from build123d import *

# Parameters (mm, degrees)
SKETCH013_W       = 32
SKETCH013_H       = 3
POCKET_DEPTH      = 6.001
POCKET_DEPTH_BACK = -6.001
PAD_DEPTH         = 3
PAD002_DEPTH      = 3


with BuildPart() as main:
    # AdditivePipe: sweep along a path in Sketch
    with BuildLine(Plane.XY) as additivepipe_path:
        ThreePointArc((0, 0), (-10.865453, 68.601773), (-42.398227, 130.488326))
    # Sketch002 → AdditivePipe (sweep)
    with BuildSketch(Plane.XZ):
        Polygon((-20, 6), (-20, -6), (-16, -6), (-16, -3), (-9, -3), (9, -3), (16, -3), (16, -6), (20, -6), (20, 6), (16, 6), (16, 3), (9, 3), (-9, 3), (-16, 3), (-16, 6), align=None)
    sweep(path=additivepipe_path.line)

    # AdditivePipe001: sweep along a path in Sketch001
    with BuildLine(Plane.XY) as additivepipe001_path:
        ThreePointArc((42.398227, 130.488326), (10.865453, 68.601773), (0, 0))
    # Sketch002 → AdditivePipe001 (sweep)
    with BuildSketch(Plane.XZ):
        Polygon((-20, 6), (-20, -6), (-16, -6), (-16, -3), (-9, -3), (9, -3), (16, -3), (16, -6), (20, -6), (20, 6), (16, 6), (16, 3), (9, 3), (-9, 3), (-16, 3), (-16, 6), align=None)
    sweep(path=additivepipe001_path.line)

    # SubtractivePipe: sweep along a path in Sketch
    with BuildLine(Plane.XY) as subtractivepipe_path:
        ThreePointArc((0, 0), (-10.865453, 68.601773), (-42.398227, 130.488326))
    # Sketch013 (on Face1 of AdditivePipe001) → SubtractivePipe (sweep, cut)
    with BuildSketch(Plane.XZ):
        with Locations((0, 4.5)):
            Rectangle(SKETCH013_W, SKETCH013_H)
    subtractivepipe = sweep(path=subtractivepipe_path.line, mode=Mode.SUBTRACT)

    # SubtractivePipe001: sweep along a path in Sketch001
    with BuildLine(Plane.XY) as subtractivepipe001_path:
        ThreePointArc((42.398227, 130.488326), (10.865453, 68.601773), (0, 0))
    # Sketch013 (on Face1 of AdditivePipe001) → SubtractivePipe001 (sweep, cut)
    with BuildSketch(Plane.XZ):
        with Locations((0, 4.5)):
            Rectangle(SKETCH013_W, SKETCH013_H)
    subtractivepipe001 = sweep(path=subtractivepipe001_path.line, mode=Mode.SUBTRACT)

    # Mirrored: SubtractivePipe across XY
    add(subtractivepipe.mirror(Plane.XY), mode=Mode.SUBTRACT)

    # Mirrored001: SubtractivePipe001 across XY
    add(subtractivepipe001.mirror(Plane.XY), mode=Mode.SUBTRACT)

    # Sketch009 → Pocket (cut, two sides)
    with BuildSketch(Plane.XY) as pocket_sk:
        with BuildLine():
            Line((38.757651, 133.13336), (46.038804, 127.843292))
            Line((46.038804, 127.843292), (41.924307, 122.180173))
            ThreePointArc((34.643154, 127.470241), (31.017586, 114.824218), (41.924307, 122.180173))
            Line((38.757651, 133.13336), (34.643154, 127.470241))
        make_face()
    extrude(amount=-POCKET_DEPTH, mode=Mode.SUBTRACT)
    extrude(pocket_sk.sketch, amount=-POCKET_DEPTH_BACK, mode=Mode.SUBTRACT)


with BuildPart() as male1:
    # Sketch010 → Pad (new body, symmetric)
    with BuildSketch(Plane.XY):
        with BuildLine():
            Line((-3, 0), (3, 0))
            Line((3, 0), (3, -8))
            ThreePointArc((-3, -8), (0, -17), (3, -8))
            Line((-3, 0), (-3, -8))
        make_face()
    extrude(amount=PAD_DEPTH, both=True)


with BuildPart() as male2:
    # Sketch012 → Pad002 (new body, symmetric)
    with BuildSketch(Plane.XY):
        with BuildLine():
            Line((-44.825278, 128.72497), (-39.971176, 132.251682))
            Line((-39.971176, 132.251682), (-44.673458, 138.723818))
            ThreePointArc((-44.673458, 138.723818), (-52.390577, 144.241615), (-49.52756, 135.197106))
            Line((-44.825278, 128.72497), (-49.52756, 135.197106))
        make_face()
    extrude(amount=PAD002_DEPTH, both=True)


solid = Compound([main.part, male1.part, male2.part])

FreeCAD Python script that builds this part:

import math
import FreeCAD as App
import Part
import Sketcher

V = App.Vector
Q = App.Units.Quantity

doc = App.newDocument("Part")
body = doc.addObject("PartDesign::Body", "Body")

# Sketch on XZ plane
sketch1 = body.newObject("Sketcher::SketchObject", "Sketch")
sketch1.AttachmentSupport = (doc.getObject("XZ_Plane"), [""])
sketch1.MapMode = "FlatFace"
sketch1.addGeometry(Part.LineSegment(V(-20, 6, 0), V(-20, -6, 0)), False)
sketch1.addGeometry(Part.LineSegment(V(-20, -6, 0), V(-16, -6, 0)), False)
sketch1.addGeometry(Part.LineSegment(V(-16, -6, 0), V(-16, -3, 0)), False)
sketch1.addGeometry(Part.LineSegment(V(-16, -3, 0), V(16, -3, 0)), False)
sketch1.addGeometry(Part.LineSegment(V(16, -3, 0), V(16, -6, 0)), False)
sketch1.addGeometry(Part.LineSegment(V(16, -6, 0), V(20, -6, 0)), False)
sketch1.addGeometry(Part.LineSegment(V(20, -6, 0), V(20, 6, 0)), False)
sketch1.addGeometry(Part.LineSegment(V(20, 6, 0), V(16, 6, 0)), False)
sketch1.addGeometry(Part.LineSegment(V(16, 6, 0), V(16, 3, 0)), False)
sketch1.addGeometry(Part.LineSegment(V(16, 3, 0), V(-16, 3, 0)), False)
sketch1.addGeometry(Part.LineSegment(V(-16, 3, 0), V(-16, 6, 0)), False)
sketch1.addGeometry(Part.LineSegment(V(-16, 6, 0), V(-20, 6, 0)), False)
sketch1.addConstraint(Sketcher.Constraint("Coincident", 0, 2, 1, 1))
sketch1.addConstraint(Sketcher.Constraint("Coincident", 1, 2, 2, 1))
sketch1.addConstraint(Sketcher.Constraint("Coincident", 2, 2, 3, 1))
sketch1.addConstraint(Sketcher.Constraint("Coincident", 3, 2, 4, 1))
sketch1.addConstraint(Sketcher.Constraint("Coincident", 4, 2, 5, 1))
sketch1.addConstraint(Sketcher.Constraint("Coincident", 5, 2, 6, 1))
sketch1.addConstraint(Sketcher.Constraint("Coincident", 6, 2, 7, 1))
sketch1.addConstraint(Sketcher.Constraint("Coincident", 7, 2, 8, 1))
sketch1.addConstraint(Sketcher.Constraint("Coincident", 8, 2, 9, 1))
sketch1.addConstraint(Sketcher.Constraint("Coincident", 9, 2, 10, 1))
sketch1.addConstraint(Sketcher.Constraint("Coincident", 10, 2, 11, 1))
sketch1.addConstraint(Sketcher.Constraint("Coincident", 11, 2, 0, 1))
sketch1.addConstraint(Sketcher.Constraint("Vertical", 0))
sketch1.addConstraint(Sketcher.Constraint("Horizontal", 1))
sketch1.addConstraint(Sketcher.Constraint("Vertical", 2))
sketch1.addConstraint(Sketcher.Constraint("Horizontal", 3))
sketch1.addConstraint(Sketcher.Constraint("Vertical", 4))
sketch1.addConstraint(Sketcher.Constraint("Horizontal", 5))
sketch1.addConstraint(Sketcher.Constraint("Vertical", 6))
sketch1.addConstraint(Sketcher.Constraint("Horizontal", 7))
sketch1.addConstraint(Sketcher.Constraint("Vertical", 8))
sketch1.addConstraint(Sketcher.Constraint("Horizontal", 9))
sketch1.addConstraint(Sketcher.Constraint("Vertical", 10))
sketch1.addConstraint(Sketcher.Constraint("Horizontal", 11))
sketch1.addConstraint(Sketcher.Constraint("Symmetric", 0, 2, 6, 2, -1, 1))
sketch1.addConstraint(Sketcher.Constraint("Symmetric", 2, 2, 8, 2, -1, 1))
sketch1.addConstraint(Sketcher.Constraint("Symmetric", 4, 2, 10, 2, -1, 1))
sketch1.addConstraint(Sketcher.Constraint("Symmetric", 1, 2, 4, 2, -2))
sketch1.addConstraint(Sketcher.Constraint("DistanceX", 1, 1, 1, 2, 4.0))
sketch1.addConstraint(Sketcher.Constraint("DistanceX", 3, 1, 3, 2, 32.0))
sketch1.addConstraint(Sketcher.Constraint("DistanceY", 0, 2, 0, 1, 12.0))
sketch1.addConstraint(Sketcher.Constraint("DistanceY", 2, 1, 2, 2, 3.0))

# Sketch on XY plane
sketch2 = body.newObject("Sketcher::SketchObject", "Sketch001")
sketch2.AttachmentSupport = (doc.getObject("XY_Plane"), [""])
sketch2.MapMode = "FlatFace"
sketch2.addGeometry(Part.ArcOfCircle(Part.Circle(V(-222, 0, 0), V(0, 0, 1), 222), math.radians(0), math.radians(36)), False)
sketch2.addConstraint(Sketcher.Constraint("Coincident", 0, 1, -1, 1))
sketch2.addConstraint(Sketcher.Constraint("Radius", 0, 221.999993))
sketch2.addConstraint(Sketcher.Constraint("DistanceX", 0, 2, -1, 1, 42.398227))
sketch2.addConstraint(Sketcher.Constraint("DistanceY", -1, 1, 0, 2, 130.488326))
doc.recompute()

additivepipe = body.newObject("PartDesign::AdditivePipe", "AdditivePipe")
additivepipe.Profile = sketch1
additivepipe.Spine = (sketch2, ["Edge1"])

# Sketch on XZ plane
sketch3 = body.newObject("Sketcher::SketchObject", "Sketch002")
sketch3.AttachmentSupport = (doc.getObject("XZ_Plane"), [""])
sketch3.MapMode = "FlatFace"
sketch3.addGeometry(Part.LineSegment(V(-20, 6, 0), V(-20, -6, 0)), False)
sketch3.addGeometry(Part.LineSegment(V(-20, -6, 0), V(-16, -6, 0)), False)
sketch3.addGeometry(Part.LineSegment(V(-16, -6, 0), V(-16, -3, 0)), False)
sketch3.addGeometry(Part.LineSegment(V(-16, -3, 0), V(16, -3, 0)), False)
sketch3.addGeometry(Part.LineSegment(V(16, -3, 0), V(16, -6, 0)), False)
sketch3.addGeometry(Part.LineSegment(V(16, -6, 0), V(20, -6, 0)), False)
sketch3.addGeometry(Part.LineSegment(V(20, -6, 0), V(20, 6, 0)), False)
sketch3.addGeometry(Part.LineSegment(V(20, 6, 0), V(16, 6, 0)), False)
sketch3.addGeometry(Part.LineSegment(V(16, 6, 0), V(16, 3, 0)), False)
sketch3.addGeometry(Part.LineSegment(V(16, 3, 0), V(-16, 3, 0)), False)
sketch3.addGeometry(Part.LineSegment(V(-16, 3, 0), V(-16, 6, 0)), False)
sketch3.addGeometry(Part.LineSegment(V(-16, 6, 0), V(-20, 6, 0)), False)
sketch3.addConstraint(Sketcher.Constraint("Coincident", 0, 2, 1, 1))
sketch3.addConstraint(Sketcher.Constraint("Coincident", 1, 2, 2, 1))
sketch3.addConstraint(Sketcher.Constraint("Coincident", 2, 2, 3, 1))
sketch3.addConstraint(Sketcher.Constraint("Coincident", 3, 2, 4, 1))
sketch3.addConstraint(Sketcher.Constraint("Coincident", 4, 2, 5, 1))
sketch3.addConstraint(Sketcher.Constraint("Coincident", 5, 2, 6, 1))
sketch3.addConstraint(Sketcher.Constraint("Coincident", 6, 2, 7, 1))
sketch3.addConstraint(Sketcher.Constraint("Coincident", 7, 2, 8, 1))
sketch3.addConstraint(Sketcher.Constraint("Coincident", 8, 2, 9, 1))
sketch3.addConstraint(Sketcher.Constraint("Coincident", 9, 2, 10, 1))
sketch3.addConstraint(Sketcher.Constraint("Coincident", 10, 2, 11, 1))
sketch3.addConstraint(Sketcher.Constraint("Coincident", 11, 2, 0, 1))
sketch3.addConstraint(Sketcher.Constraint("Vertical", 0))
sketch3.addConstraint(Sketcher.Constraint("Horizontal", 1))
sketch3.addConstraint(Sketcher.Constraint("Vertical", 2))
sketch3.addConstraint(Sketcher.Constraint("Horizontal", 3))
sketch3.addConstraint(Sketcher.Constraint("Vertical", 4))
sketch3.addConstraint(Sketcher.Constraint("Horizontal", 5))
sketch3.addConstraint(Sketcher.Constraint("Vertical", 6))
sketch3.addConstraint(Sketcher.Constraint("Horizontal", 7))
sketch3.addConstraint(Sketcher.Constraint("Vertical", 8))
sketch3.addConstraint(Sketcher.Constraint("Horizontal", 9))
sketch3.addConstraint(Sketcher.Constraint("Vertical", 10))
sketch3.addConstraint(Sketcher.Constraint("Horizontal", 11))
sketch3.addConstraint(Sketcher.Constraint("Symmetric", 0, 2, 6, 2, -1, 1))
sketch3.addConstraint(Sketcher.Constraint("Symmetric", 2, 2, 8, 2, -1, 1))
sketch3.addConstraint(Sketcher.Constraint("Symmetric", 4, 2, 10, 2, -1, 1))
sketch3.addConstraint(Sketcher.Constraint("Symmetric", 1, 2, 4, 2, -2))
sketch3.addConstraint(Sketcher.Constraint("DistanceX", 1, 1, 1, 2, 4.0))
sketch3.addConstraint(Sketcher.Constraint("DistanceX", 3, 1, 3, 2, 32.0))
sketch3.addConstraint(Sketcher.Constraint("DistanceY", 0, 2, 0, 1, 12.0))
sketch3.addConstraint(Sketcher.Constraint("DistanceY", 2, 1, 2, 2, 3.0))

# Sketch on XY plane
sketch4 = body.newObject("Sketcher::SketchObject", "Sketch003")
sketch4.AttachmentSupport = (doc.getObject("XY_Plane"), [""])
sketch4.MapMode = "FlatFace"
sketch4.addGeometry(Part.ArcOfCircle(Part.Circle(V(222, 0, 0), V(0, 0, 1), 222), math.radians(144), math.radians(180)), False)
sketch4.addConstraint(Sketcher.Constraint("Coincident", 0, 2, -1, 1))
sketch4.addConstraint(Sketcher.Constraint("Radius", 0, 221.999993))
sketch4.addConstraint(Sketcher.Constraint("DistanceX", -1, 1, 0, 1, 42.398227))
sketch4.addConstraint(Sketcher.Constraint("DistanceY", -1, 1, 0, 1, 130.488326))
doc.recompute()

additivepipe2 = body.newObject("PartDesign::AdditivePipe", "AdditivePipe001")
additivepipe2.Profile = sketch3
additivepipe2.Spine = (sketch4, ["Edge1"])

# Sketch on XZ plane
sketch5 = body.newObject("Sketcher::SketchObject", "Sketch004")
sketch5.AttachmentSupport = (doc.getObject("XZ_Plane"), [""])
sketch5.MapMode = "FlatFace"
sketch5.addGeometry(Part.LineSegment(V(-16, 6, 0), V(-16, 3, 0)), False)
sketch5.addGeometry(Part.LineSegment(V(-16, 3, 0), V(16, 3, 0)), False)
sketch5.addGeometry(Part.LineSegment(V(16, 3, 0), V(16, 6, 0)), False)
sketch5.addGeometry(Part.LineSegment(V(16, 6, 0), V(-16, 6, 0)), False)
sketch5.addConstraint(Sketcher.Constraint("Coincident", 0, 2, 1, 1))
sketch5.addConstraint(Sketcher.Constraint("Coincident", 1, 2, 2, 1))
sketch5.addConstraint(Sketcher.Constraint("Coincident", 2, 2, 3, 1))
sketch5.addConstraint(Sketcher.Constraint("Coincident", 3, 2, 0, 1))
sketch5.addConstraint(Sketcher.Constraint("Vertical", 0))
sketch5.addConstraint(Sketcher.Constraint("Horizontal", 1))
sketch5.addConstraint(Sketcher.Constraint("Vertical", 2))
sketch5.addConstraint(Sketcher.Constraint("Horizontal", 3))
sketch5.addConstraint(Sketcher.Constraint("DistanceX", 1, 1, 1, 2, 32.0))
sketch5.addConstraint(Sketcher.Constraint("DistanceY", 0, 2, 0, 1, 3.0))
sketch5.addConstraint(Sketcher.Constraint("DistanceX", 0, 2, -1, 1, 16.0))
sketch5.addConstraint(Sketcher.Constraint("DistanceY", -1, 1, 0, 2, 3.0))

# Sketch on XY plane
sketch6 = body.newObject("Sketcher::SketchObject", "Sketch005")
sketch6.AttachmentSupport = (doc.getObject("XY_Plane"), [""])
sketch6.MapMode = "FlatFace"
sketch6.addGeometry(Part.ArcOfCircle(Part.Circle(V(-222, 0, 0), V(0, 0, 1), 222), math.radians(0), math.radians(36)), False)
sketch6.addConstraint(Sketcher.Constraint("Coincident", 0, 1, -1, 1))
sketch6.addConstraint(Sketcher.Constraint("Radius", 0, 221.999993))
sketch6.addConstraint(Sketcher.Constraint("DistanceX", 0, 2, -1, 1, 42.398227))
sketch6.addConstraint(Sketcher.Constraint("DistanceY", -1, 1, 0, 2, 130.488326))
doc.recompute()

subtractivepipe = body.newObject("PartDesign::SubtractivePipe", "SubtractivePipe")
subtractivepipe.Profile = sketch5
subtractivepipe.Spine = (sketch6, ["Edge1"])

# Sketch on XZ plane
sketch7 = body.newObject("Sketcher::SketchObject", "Sketch006")
sketch7.AttachmentSupport = (doc.getObject("XZ_Plane"), [""])
sketch7.MapMode = "FlatFace"
sketch7.addGeometry(Part.LineSegment(V(-16, 6, 0), V(-16, 3, 0)), False)
sketch7.addGeometry(Part.LineSegment(V(-16, 3, 0), V(16, 3, 0)), False)
sketch7.addGeometry(Part.LineSegment(V(16, 3, 0), V(16, 6, 0)), False)
sketch7.addGeometry(Part.LineSegment(V(16, 6, 0), V(-16, 6, 0)), False)
sketch7.addConstraint(Sketcher.Constraint("Coincident", 0, 2, 1, 1))
sketch7.addConstraint(Sketcher.Constraint("Coincident", 1, 2, 2, 1))
sketch7.addConstraint(Sketcher.Constraint("Coincident", 2, 2, 3, 1))
sketch7.addConstraint(Sketcher.Constraint("Coincident", 3, 2, 0, 1))
sketch7.addConstraint(Sketcher.Constraint("Vertical", 0))
sketch7.addConstraint(Sketcher.Constraint("Horizontal", 1))
sketch7.addConstraint(Sketcher.Constraint("Vertical", 2))
sketch7.addConstraint(Sketcher.Constraint("Horizontal", 3))
sketch7.addConstraint(Sketcher.Constraint("DistanceX", 1, 1, 1, 2, 32.0))
sketch7.addConstraint(Sketcher.Constraint("DistanceY", 0, 2, 0, 1, 3.0))
sketch7.addConstraint(Sketcher.Constraint("DistanceX", 0, 2, -1, 1, 16.0))
sketch7.addConstraint(Sketcher.Constraint("DistanceY", -1, 1, 0, 2, 3.0))

# Sketch on XY plane
sketch8 = body.newObject("Sketcher::SketchObject", "Sketch007")
sketch8.AttachmentSupport = (doc.getObject("XY_Plane"), [""])
sketch8.MapMode = "FlatFace"
sketch8.addGeometry(Part.ArcOfCircle(Part.Circle(V(222, 0, 0), V(0, 0, 1), 222), math.radians(144), math.radians(180)), False)
sketch8.addConstraint(Sketcher.Constraint("Coincident", 0, 2, -1, 1))
sketch8.addConstraint(Sketcher.Constraint("Radius", 0, 221.999993))
sketch8.addConstraint(Sketcher.Constraint("DistanceX", -1, 1, 0, 1, 42.398227))
sketch8.addConstraint(Sketcher.Constraint("DistanceY", -1, 1, 0, 1, 130.488326))
doc.recompute()

subtractivepipe2 = body.newObject("PartDesign::SubtractivePipe", "SubtractivePipe001")
subtractivepipe2.Profile = sketch7
subtractivepipe2.Spine = (sketch8, ["Edge1"])
doc.recompute()

mirrored = body.newObject("PartDesign::Mirrored", "Mirrored")
mirrored.Originals = [subtractivepipe]
mirrored.MirrorPlane = (doc.getObject("XY_Plane"), [""])
body.Tip = mirrored
doc.recompute()

mirrored2 = body.newObject("PartDesign::Mirrored", "Mirrored001")
mirrored2.Originals = [subtractivepipe2]
mirrored2.MirrorPlane = (doc.getObject("XY_Plane"), [""])
body.Tip = mirrored2

# Sketch on XY plane
sketch9 = body.newObject("Sketcher::SketchObject", "Sketch008")
sketch9.AttachmentSupport = (doc.getObject("XY_Plane"), [""])
sketch9.MapMode = "FlatFace"
sketch9.addGeometry(Part.LineSegment(V(46, 128, 0), V(39, 133, 0)), False)
sketch9.addGeometry(Part.LineSegment(V(39, 133, 0), V(35, 127, 0)), False)
sketch9.addGeometry(Part.ArcOfCircle(Part.Circle(V(35, 120, 0), V(0, 0, 1), 7), math.radians(94), math.radians(374)), False)
sketch9.addGeometry(Part.LineSegment(V(42, 122, 0), V(46, 128, 0)), False)
sketch9.addConstraint(Sketcher.Constraint("Coincident", 0, 2, 1, 1))
sketch9.addConstraint(Sketcher.Constraint("Coincident", 1, 2, 2, 1))
sketch9.addConstraint(Sketcher.Constraint("Coincident", 2, 2, 3, 1))
sketch9.addConstraint(Sketcher.Constraint("Coincident", 3, 2, 0, 1))
sketch9.addConstraint(Sketcher.Constraint("Perpendicular", 0, 1))
sketch9.addConstraint(Sketcher.Constraint("Parallel", 1, 3))
sketch9.addConstraint(Sketcher.Constraint("Equal", 1, 3))
sketch9.addConstraint(Sketcher.Constraint("Radius", 2, 7.0))
sketch9.addConstraint(Sketcher.Constraint("Angle", 0, Q("143.999996 deg")))
sketch9.addConstraint(Sketcher.Constraint("Distance", 0, 9.0))
sketch9.addConstraint(Sketcher.Constraint("Distance", 1, 7.0))
sketch9.addConstraint(Sketcher.Constraint("DistanceX", -1, 1, 0, 2, 38.757651))
sketch9.addConstraint(Sketcher.Constraint("DistanceY", -1, 1, 0, 2, 133.13336))
pocket1 = body.newObject("PartDesign::Pocket", "Pocket")
pocket1.Profile = sketch9
pocket1.Type = "ThroughAll"
pocket1.Midplane = True
body2 = doc.addObject("PartDesign::Body", "Body001")

# Sketch on XY plane
sketch10 = body2.newObject("Sketcher::SketchObject", "Sketch009")
sketch10.AttachmentSupport = (doc.getObject("XY_Plane001"), [""])
sketch10.MapMode = "FlatFace"
sketch10.addGeometry(Part.LineSegment(V(3, 0, 0), V(-3, 0, 0)), False)
sketch10.addGeometry(Part.LineSegment(V(-3, 0, 0), V(-3, -8, 0)), False)
sketch10.addGeometry(Part.ArcOfCircle(Part.Circle(V(0, -12, 0), V(0, 0, 1), 5), math.radians(127), math.radians(413)), False)
sketch10.addGeometry(Part.LineSegment(V(3, -8, 0), V(3, 0, 0)), False)
sketch10.addConstraint(Sketcher.Constraint("Coincident", 0, 2, 1, 1))
sketch10.addConstraint(Sketcher.Constraint("Coincident", 1, 2, 2, 1))
sketch10.addConstraint(Sketcher.Constraint("Coincident", 2, 2, 3, 1))
sketch10.addConstraint(Sketcher.Constraint("Coincident", 3, 2, 0, 1))
sketch10.addConstraint(Sketcher.Constraint("Horizontal", 0))
sketch10.addConstraint(Sketcher.Constraint("Vertical", 1))
sketch10.addConstraint(Sketcher.Constraint("Vertical", 3))
sketch10.addConstraint(Sketcher.Constraint("Symmetric", 0, 2, 3, 2, -1, 1))
sketch10.addConstraint(Sketcher.Constraint("PointOnObject", 2, 3, -2))
sketch10.addConstraint(Sketcher.Constraint("Radius", 2, 5.0))
sketch10.addConstraint(Sketcher.Constraint("DistanceX", 0, 2, 0, 1, 6.0))
sketch10.addConstraint(Sketcher.Constraint("DistanceY", 1, 2, 1, 1, 8.0))
pad1 = body2.newObject("PartDesign::Pad", "Pad")
pad1.Profile = sketch10
pad1.Length = 6
pad1.Midplane = True
body3 = doc.addObject("PartDesign::Body", "Body002")

# Sketch on XY plane
sketch11 = body3.newObject("Sketcher::SketchObject", "Sketch010")
sketch11.AttachmentSupport = (doc.getObject("XY_Plane002"), [""])
sketch11.MapMode = "FlatFace"
sketch11.addGeometry(Part.LineSegment(V(-45, 129, 0), V(-40, 132, 0)), False)
sketch11.addGeometry(Part.LineSegment(V(-40, 132, 0), V(-45, 139, 0)), False)
sketch11.addGeometry(Part.ArcOfCircle(Part.Circle(V(-49, 140, 0), V(0, 0, 1), 5), math.radians(-17), math.radians(269)), False)
sketch11.addGeometry(Part.LineSegment(V(-50, 135, 0), V(-45, 129, 0)), False)
sketch11.addConstraint(Sketcher.Constraint("Coincident", 0, 2, 1, 1))
sketch11.addConstraint(Sketcher.Constraint("Coincident", 1, 2, 2, 1))
sketch11.addConstraint(Sketcher.Constraint("Coincident", 2, 2, 3, 1))
sketch11.addConstraint(Sketcher.Constraint("Coincident", 3, 2, 0, 1))
sketch11.addConstraint(Sketcher.Constraint("Perpendicular", 0, 1))
sketch11.addConstraint(Sketcher.Constraint("Parallel", 1, 3))
sketch11.addConstraint(Sketcher.Constraint("Equal", 1, 3))
sketch11.addConstraint(Sketcher.Constraint("Radius", 2, 5.0))
sketch11.addConstraint(Sketcher.Constraint("Angle", 0, Q("36.000004 deg")))
sketch11.addConstraint(Sketcher.Constraint("Distance", 0, 6.0))
sketch11.addConstraint(Sketcher.Constraint("Distance", 1, 8.0))
sketch11.addConstraint(Sketcher.Constraint("DistanceX", 2, 3, -1, 1, 49.45165))
sketch11.addConstraint(Sketcher.Constraint("DistanceY", -1, 1, 2, 3, 140.19653))
pad2 = body3.newObject("PartDesign::Pad", "Pad001")
pad2.Profile = sketch11
pad2.Length = 6
pad2.Midplane = True

doc.recompute()
